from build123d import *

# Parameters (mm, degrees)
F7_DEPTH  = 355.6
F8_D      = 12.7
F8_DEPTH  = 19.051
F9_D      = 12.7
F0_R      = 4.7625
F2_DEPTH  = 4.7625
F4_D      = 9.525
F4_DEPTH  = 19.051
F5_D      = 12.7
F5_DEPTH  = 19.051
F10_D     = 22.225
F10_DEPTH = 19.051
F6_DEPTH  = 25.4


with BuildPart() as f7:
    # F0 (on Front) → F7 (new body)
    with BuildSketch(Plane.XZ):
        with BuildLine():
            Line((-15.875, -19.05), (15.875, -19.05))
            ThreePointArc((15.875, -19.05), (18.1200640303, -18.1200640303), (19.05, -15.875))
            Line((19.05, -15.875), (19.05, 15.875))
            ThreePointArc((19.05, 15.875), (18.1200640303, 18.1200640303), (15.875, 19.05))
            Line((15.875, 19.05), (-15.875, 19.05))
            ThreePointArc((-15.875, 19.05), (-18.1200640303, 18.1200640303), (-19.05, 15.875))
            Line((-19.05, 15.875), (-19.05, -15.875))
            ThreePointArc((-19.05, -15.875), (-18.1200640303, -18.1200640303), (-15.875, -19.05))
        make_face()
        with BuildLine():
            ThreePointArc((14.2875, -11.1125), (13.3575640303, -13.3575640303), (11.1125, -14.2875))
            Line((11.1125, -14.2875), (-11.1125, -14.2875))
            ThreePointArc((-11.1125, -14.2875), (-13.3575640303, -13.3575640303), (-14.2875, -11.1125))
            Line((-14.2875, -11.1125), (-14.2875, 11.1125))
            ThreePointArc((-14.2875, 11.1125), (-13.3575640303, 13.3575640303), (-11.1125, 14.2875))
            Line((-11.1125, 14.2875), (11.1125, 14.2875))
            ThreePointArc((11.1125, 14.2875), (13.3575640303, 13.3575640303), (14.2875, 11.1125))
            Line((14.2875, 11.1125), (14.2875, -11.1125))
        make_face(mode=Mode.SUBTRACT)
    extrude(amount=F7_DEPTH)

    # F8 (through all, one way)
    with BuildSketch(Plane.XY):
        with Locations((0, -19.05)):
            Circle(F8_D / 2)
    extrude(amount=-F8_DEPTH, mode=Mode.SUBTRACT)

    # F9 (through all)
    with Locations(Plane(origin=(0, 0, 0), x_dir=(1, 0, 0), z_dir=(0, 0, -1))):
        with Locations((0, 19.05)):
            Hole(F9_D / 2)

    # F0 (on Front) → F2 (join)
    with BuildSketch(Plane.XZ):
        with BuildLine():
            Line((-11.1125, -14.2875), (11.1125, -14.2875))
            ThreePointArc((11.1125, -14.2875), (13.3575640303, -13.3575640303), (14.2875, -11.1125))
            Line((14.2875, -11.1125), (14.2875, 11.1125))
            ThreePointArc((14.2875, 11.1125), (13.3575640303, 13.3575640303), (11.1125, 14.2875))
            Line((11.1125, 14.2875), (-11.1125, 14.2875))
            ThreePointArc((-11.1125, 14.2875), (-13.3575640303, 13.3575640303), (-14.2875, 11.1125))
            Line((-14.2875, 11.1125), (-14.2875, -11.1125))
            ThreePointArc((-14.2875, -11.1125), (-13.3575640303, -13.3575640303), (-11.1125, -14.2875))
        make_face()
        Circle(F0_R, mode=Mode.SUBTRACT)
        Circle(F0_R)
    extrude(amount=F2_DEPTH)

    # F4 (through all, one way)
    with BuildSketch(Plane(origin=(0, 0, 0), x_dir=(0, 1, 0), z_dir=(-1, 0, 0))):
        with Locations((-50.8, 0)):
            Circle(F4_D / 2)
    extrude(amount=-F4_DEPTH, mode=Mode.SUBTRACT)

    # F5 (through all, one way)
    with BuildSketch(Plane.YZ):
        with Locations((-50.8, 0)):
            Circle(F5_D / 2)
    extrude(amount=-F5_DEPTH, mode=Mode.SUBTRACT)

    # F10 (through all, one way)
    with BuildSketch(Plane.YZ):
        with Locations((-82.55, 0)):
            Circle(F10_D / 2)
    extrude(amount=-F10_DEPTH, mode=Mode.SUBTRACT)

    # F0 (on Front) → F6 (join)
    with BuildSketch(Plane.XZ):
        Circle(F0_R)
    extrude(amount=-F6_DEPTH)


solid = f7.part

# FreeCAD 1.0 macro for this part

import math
import FreeCAD as App
import Part
import Sketcher
from FreeCAD import Vector
Q = App.Units.Quantity

doc = App.newDocument("Part")
params = doc.addObject("Spreadsheet::Sheet", "Params")
for row, (alias, value) in enumerate([
    ("sketch1_radius", "0.125 in"),
    ("sketch1_width", "1.25 in"),
    ("sketch1_width2", "0.875 in"),
    ("pad1_length", "14 in"),
    ("sketch2_diameter", "0.5 in"),
    ("sketch3_diameter", "0.5 in"),
    ("hole_diameter", "0.5 in"),
    ("sketch4_radius", "0.125 in"),
    ("pad2_length", "0.1875 in"),
    ("sketch5_diameter", "0.375 in"),
    ("sketch6_diameter", "0.5 in"),
    ("sketch7_diameter", "0.875 in"),
    ("sketch8_diameter", "0.375 in"),
    ("pad3_length", "1 in"),
], start=1):
    params.set(f"A{row}", alias)
    params.set(f"B{row}", "=" + value)
    params.setAlias(f"B{row}", alias)

body = doc.addObject("PartDesign::Body", "Body")

sketch1 = doc.addObject("Sketcher::SketchObject", "Sketch")
body.addObject(sketch1)
sketch1.AttachmentSupport = (doc.XZ_Plane, [""])
sketch1.MapMode = "FlatFace"
sketch1.addGeometry([
    Part.LineSegment(Vector(-15.9, -19.1, 0), Vector(15.9, -19.1, 0)),
    Part.ArcOfCircle(Part.Circle(Vector(15.9, -15.9, 0), Vector(0, 0, 1), 3.2), math.radians(-90), math.radians(0)),
    Part.LineSegment(Vector(19.1, -15.9, 0), Vector(19.1, 15.9, 0)),
    Part.ArcOfCircle(Part.Circle(Vector(15.9, 15.9, 0), Vector(0, 0, 1), 3.2), math.radians(0), math.radians(90)),
    Part.LineSegment(Vector(15.9, 19.1, 0), Vector(-15.9, 19.1, 0)),
    Part.ArcOfCircle(Part.Circle(Vector(-15.9, 15.9, 0), Vector(0, 0, 1), 3.2), math.radians(90), math.radians(180)),
    Part.LineSegment(Vector(-19.1, 15.9, 0), Vector(-19.1, -15.9, 0)),
    Part.ArcOfCircle(Part.Circle(Vector(-15.9, -15.9, 0), Vector(0, 0, 1), 3.2), math.radians(180), math.radians(270)),
    Part.LineSegment(Vector(14.3, 11.1, 0), Vector(14.3, -11.1, 0)),
    Part.ArcOfCircle(Part.Circle(Vector(11.1, -11.1, 0), Vector(0, 0, 1), 3.2), math.radians(-90), math.radians(0)),
    Part.LineSegment(Vector(11.1, -14.3, 0), Vector(-11.1, -14.3, 0)),
    Part.ArcOfCircle(Part.Circle(Vector(-11.1, -11.1, 0), Vector(0, 0, 1), 3.2), math.radians(180), math.radians(270)),
    Part.LineSegment(Vector(-14.3, -11.1, 0), Vector(-14.3, 11.1, 0)),
    Part.ArcOfCircle(Part.Circle(Vector(-11.1, 11.1, 0), Vector(0, 0, 1), 3.2), math.radians(90), math.radians(180)),
    Part.LineSegment(Vector(-11.1, 14.3, 0), Vector(11.1, 14.3, 0)),
    Part.ArcOfCircle(Part.Circle(Vector(11.1, 11.1, 0), Vector(0, 0, 1), 3.2), math.radians(0), math.radians(90)),
], False)
sketch1.addConstraint([
    Sketcher.Constraint("Tangent", 0, 2, 1, 1),
    Sketcher.Constraint("Tangent", 1, 2, 2, 1),
    Sketcher.Constraint("Tangent", 2, 2, 3, 1),
    Sketcher.Constraint("Tangent", 3, 2, 4, 1),
    Sketcher.Constraint("Tangent", 4, 2, 5, 1),
    Sketcher.Constraint("Tangent", 5, 2, 6, 1),
    Sketcher.Constraint("Tangent", 6, 2, 7, 1),
    Sketcher.Constraint("Tangent", 7, 2, 0, 1),
    Sketcher.Constraint("Tangent", 8, 2, 9, 2),
    Sketcher.Constraint("Tangent", 9, 1, 10, 1),
    Sketcher.Constraint("Tangent", 10, 2, 11, 2),
    Sketcher.Constraint("Tangent", 11, 1, 12, 1),
    Sketcher.Constraint("Tangent", 12, 2, 13, 2),
    Sketcher.Constraint("Tangent", 13, 1, 14, 1),
    Sketcher.Constraint("Tangent", 14, 2, 15, 2),
    Sketcher.Constraint("Tangent", 15, 1, 8, 1),
    Sketcher.Constraint("Horizontal", 0),
    Sketcher.Constraint("Vertical", 2),
    Sketcher.Constraint("Horizontal", 4),
    Sketcher.Constraint("Vertical", 6),
    Sketcher.Constraint("Vertical", 8),
    Sketcher.Constraint("Horizontal", 10),
    Sketcher.Constraint("Vertical", 12),
    Sketcher.Constraint("Horizontal", 14),
    Sketcher.Constraint("Equal", 1, 3),
    Sketcher.Constraint("Equal", 3, 5),
    Sketcher.Constraint("Equal", 5, 7),
    Sketcher.Constraint("Equal", 7, 9),
    Sketcher.Constraint("Equal", 9, 11),
    Sketcher.Constraint("Equal", 11, 13),
    Sketcher.Constraint("Equal", 13, 15),
    Sketcher.Constraint("Symmetric", 1, 3, 5, 3, -1, 1),
    Sketcher.Constraint("Symmetric", 9, 3, 13, 3, -1, 1),
    Sketcher.Constraint("Equal", 4, 2),
    Sketcher.Constraint("Equal", 14, 8),
    Sketcher.Constraint("Radius", 1, Q("0.125 in")),
    Sketcher.Constraint("DistanceX", 0, 1, 0, 2, Q("1.25 in")),
    Sketcher.Constraint("DistanceX", 10, 2, 10, 1, Q("0.875 in")),
])
sketch1.setExpression("Constraints[35]", "Params.sketch1_radius")
sketch1.setExpression("Constraints[36]", "Params.sketch1_width")
sketch1.setExpression("Constraints[37]", "Params.sketch1_width2")
pad1 = doc.addObject("PartDesign::Pad", "Pad")
body.addObject(pad1)
pad1.Profile = sketch1
pad1.setExpression("Length", "Params.pad1_length")

sketch2 = doc.addObject("Sketcher::SketchObject", "Sketch001")
body.addObject(sketch2)
sketch2.AttachmentSupport = (doc.XY_Plane, [""])
sketch2.MapMode = "FlatFace"
sketch2.addGeometry(Part.Circle(Vector(0, -19, 0), Vector(0, 0, 1), 6), False)
sketch2.addConstraint([
    Sketcher.Constraint("PointOnObject", 0, 3, -2),
    Sketcher.Constraint("Diameter", 0, Q("0.5 in")),
    Sketcher.Constraint("DistanceY", 0, 3, -1, 1, Q("0.75 in")),
])
sketch2.setExpression("Constraints[1]", "Params.sketch2_diameter")
pocket1 = doc.addObject("PartDesign::Pocket", "Pocket")
body.addObject(pocket1)
pocket1.Profile = sketch2
pocket1.Type = "ThroughAll"

sketch3 = doc.addObject("Sketcher::SketchObject", "Sketch002")
body.addObject(sketch3)
sketch3.AttachmentSupport = (doc.XY_Plane, [""])
sketch3.MapMode = "FlatFace"
sketch3.addGeometry(Part.Circle(Vector(0, -19, 0), Vector(0, 0, 1), 6), False)
sketch3.addConstraint([
    Sketcher.Constraint("PointOnObject", 0, 3, -2),
    Sketcher.Constraint("Diameter", 0, Q("0.5 in")),
    Sketcher.Constraint("DistanceY", 0, 3, -1, 1, Q("0.75 in")),
])
sketch3.setExpression("Constraints[1]", "Params.sketch3_diameter")
doc.recompute()
hole = doc.addObject("PartDesign::Hole", "Hole")
body.addObject(hole)
hole.Profile = sketch3
hole.ThreadType = "None"
hole.setExpression("Diameter", "Params.hole_diameter")
hole.DepthType = "ThroughAll"
hole.Reversed = True

sketch4 = doc.addObject("Sketcher::SketchObject", "Sketch003")
body.addObject(sketch4)
sketch4.AttachmentSupport = (doc.XZ_Plane, [""])
sketch4.MapMode = "FlatFace"
sketch4.addGeometry([
    Part.LineSegment(Vector(-11.1, -14.3, 0), Vector(11.1, -14.3, 0)),
    Part.ArcOfCircle(Part.Circle(Vector(11.1, -11.1, 0), Vector(0, 0, 1), 3.2), math.radians(-90), math.radians(0)),
    Part.LineSegment(Vector(14.3, -11.1, 0), Vector(14.3, 11.1, 0)),
    Part.ArcOfCircle(Part.Circle(Vector(11.1, 11.1, 0), Vector(0, 0, 1), 3.2), math.radians(0), math.radians(90)),
    Part.LineSegment(Vector(11.1, 14.3, 0), Vector(-11.1, 14.3, 0)),
    Part.ArcOfCircle(Part.Circle(Vector(-11.1, 11.1, 0), Vector(0, 0, 1), 3.2), math.radians(90), math.radians(180)),
    Part.LineSegment(Vector(-14.3, 11.1, 0), Vector(-14.3, -11.1, 0)),
    Part.ArcOfCircle(Part.Circle(Vector(-11.1, -11.1, 0), Vector(0, 0, 1), 3.2), math.radians(180), math.radians(270)),
], False)
sketch4.addConstraint([
    Sketcher.Constraint("Tangent", 0, 2, 1, 1),
    Sketcher.Constraint("Tangent", 1, 2, 2, 1),
    Sketcher.Constraint("Tangent", 2, 2, 3, 1),
    Sketcher.Constraint("Tangent", 3, 2, 4, 1),
    Sketcher.Constraint("Tangent", 4, 2, 5, 1),
    Sketcher.Constraint("Tangent", 5, 2, 6, 1),
    Sketcher.Constraint("Tangent", 6, 2, 7, 1),
    Sketcher.Constraint("Tangent", 7, 2, 0, 1),
    Sketcher.Constraint("Horizontal", 0),
    Sketcher.Constraint("Vertical", 2),
    Sketcher.Constraint("Horizontal", 4),
    Sketcher.Constraint("Vertical", 6),
    Sketcher.Constraint("Equal", 1, 3),
    Sketcher.Constraint("Equal", 3, 5),
    Sketcher.Constraint("Equal", 5, 7),
    Sketcher.Constraint("Symmetric", 1, 3, 5, 3, -1, 1),
    Sketcher.Constraint("Equal", 4, 2),
    Sketcher.Constraint("Radius", 1, Q("0.125 in")),
    Sketcher.Constraint("DistanceY", 0, 2, 3, 3, Q("1 in")),
])
sketch4.setExpression("Constraints[17]", "Params.sketch4_radius")
pad2 = doc.addObject("PartDesign::Pad", "Pad001")
body.addObject(pad2)
pad2.Profile = sketch4
pad2.setExpression("Length", "Params.pad2_length")

sketch5 = doc.addObject("Sketcher::SketchObject", "Sketch004")
body.addObject(sketch5)
sketch5.AttachmentSupport = (doc.YZ_Plane, [""])
sketch5.MapMode = "FlatFace"
sketch5.addGeometry(Part.Circle(Vector(-50.8, 0, 0), Vector(0, 0, 1), 4.8), False)
sketch5.addConstraint([
    Sketcher.Constraint("PointOnObject", 0, 3, -1),
    Sketcher.Constraint("Diameter", 0, Q("0.375 in")),
    Sketcher.Constraint("DistanceX", 0, 3, -1, 1, Q("2 in")),
])
sketch5.setExpression("Constraints[1]", "Params.sketch5_diameter")
pocket2 = doc.addObject("PartDesign::Pocket", "Pocket001")
body.addObject(pocket2)
pocket2.Profile = sketch5
pocket2.Type = "ThroughAll"
pocket2.Reversed = True

sketch6 = doc.addObject("Sketcher::SketchObject", "Sketch005")
body.addObject(sketch6)
sketch6.AttachmentSupport = (doc.YZ_Plane, [""])
sketch6.MapMode = "FlatFace"
sketch6.addGeometry(Part.Circle(Vector(-51, 0, 0), Vector(0, 0, 1), 6), False)
sketch6.addConstraint([
    Sketcher.Constraint("PointOnObject", 0, 3, -1),
    Sketcher.Constraint("Diameter", 0, Q("0.5 in")),
    Sketcher.Constraint("DistanceX", 0, 3, -1, 1, Q("2 in")),
])
sketch6.setExpression("Constraints[1]", "Params.sketch6_diameter")
pocket3 = doc.addObject("PartDesign::Pocket", "Pocket002")
body.addObject(pocket3)
pocket3.Profile = sketch6
pocket3.Type = "ThroughAll"

sketch7 = doc.addObject("Sketcher::SketchObject", "Sketch006")
body.addObject(sketch7)
sketch7.AttachmentSupport = (doc.YZ_Plane, [""])
sketch7.MapMode = "FlatFace"
sketch7.addGeometry(Part.Circle(Vector(-83, 0, 0), Vector(0, 0, 1), 11), False)
sketch7.addConstraint([
    Sketcher.Constraint("PointOnObject", 0, 3, -1),
    Sketcher.Constraint("Diameter", 0, Q("0.875 in")),
    Sketcher.Constraint("DistanceX", 0, 3, -1, 1, Q("3.25 in")),
])
sketch7.setExpression("Constraints[1]", "Params.sketch7_diameter")
pocket4 = doc.addObject("PartDesign::Pocket", "Pocket003")
body.addObject(pocket4)
pocket4.Profile = sketch7
pocket4.Type = "ThroughAll"

sketch8 = doc.addObject("Sketcher::SketchObject", "Sketch007")
body.addObject(sketch8)
sketch8.AttachmentSupport = (doc.XZ_Plane, [""])
sketch8.MapMode = "FlatFace"
sketch8.addGeometry(Part.Circle(Vector(0, 0, 0), Vector(0, 0, 1), 4.8), False)
sketch8.addConstraint([
    Sketcher.Constraint("Coincident", 0, 3, -1, 1),
    Sketcher.Constraint("Diameter", 0, Q("0.375 in")),
])
sketch8.setExpression("Constraints[1]", "Params.sketch8_diameter")
pad3 = doc.addObject("PartDesign::Pad", "Pad002")
body.addObject(pad3)
pad3.Profile = sketch8
pad3.setExpression("Length", "Params.pad3_length")
pad3.Reversed = True

doc.recompute()
